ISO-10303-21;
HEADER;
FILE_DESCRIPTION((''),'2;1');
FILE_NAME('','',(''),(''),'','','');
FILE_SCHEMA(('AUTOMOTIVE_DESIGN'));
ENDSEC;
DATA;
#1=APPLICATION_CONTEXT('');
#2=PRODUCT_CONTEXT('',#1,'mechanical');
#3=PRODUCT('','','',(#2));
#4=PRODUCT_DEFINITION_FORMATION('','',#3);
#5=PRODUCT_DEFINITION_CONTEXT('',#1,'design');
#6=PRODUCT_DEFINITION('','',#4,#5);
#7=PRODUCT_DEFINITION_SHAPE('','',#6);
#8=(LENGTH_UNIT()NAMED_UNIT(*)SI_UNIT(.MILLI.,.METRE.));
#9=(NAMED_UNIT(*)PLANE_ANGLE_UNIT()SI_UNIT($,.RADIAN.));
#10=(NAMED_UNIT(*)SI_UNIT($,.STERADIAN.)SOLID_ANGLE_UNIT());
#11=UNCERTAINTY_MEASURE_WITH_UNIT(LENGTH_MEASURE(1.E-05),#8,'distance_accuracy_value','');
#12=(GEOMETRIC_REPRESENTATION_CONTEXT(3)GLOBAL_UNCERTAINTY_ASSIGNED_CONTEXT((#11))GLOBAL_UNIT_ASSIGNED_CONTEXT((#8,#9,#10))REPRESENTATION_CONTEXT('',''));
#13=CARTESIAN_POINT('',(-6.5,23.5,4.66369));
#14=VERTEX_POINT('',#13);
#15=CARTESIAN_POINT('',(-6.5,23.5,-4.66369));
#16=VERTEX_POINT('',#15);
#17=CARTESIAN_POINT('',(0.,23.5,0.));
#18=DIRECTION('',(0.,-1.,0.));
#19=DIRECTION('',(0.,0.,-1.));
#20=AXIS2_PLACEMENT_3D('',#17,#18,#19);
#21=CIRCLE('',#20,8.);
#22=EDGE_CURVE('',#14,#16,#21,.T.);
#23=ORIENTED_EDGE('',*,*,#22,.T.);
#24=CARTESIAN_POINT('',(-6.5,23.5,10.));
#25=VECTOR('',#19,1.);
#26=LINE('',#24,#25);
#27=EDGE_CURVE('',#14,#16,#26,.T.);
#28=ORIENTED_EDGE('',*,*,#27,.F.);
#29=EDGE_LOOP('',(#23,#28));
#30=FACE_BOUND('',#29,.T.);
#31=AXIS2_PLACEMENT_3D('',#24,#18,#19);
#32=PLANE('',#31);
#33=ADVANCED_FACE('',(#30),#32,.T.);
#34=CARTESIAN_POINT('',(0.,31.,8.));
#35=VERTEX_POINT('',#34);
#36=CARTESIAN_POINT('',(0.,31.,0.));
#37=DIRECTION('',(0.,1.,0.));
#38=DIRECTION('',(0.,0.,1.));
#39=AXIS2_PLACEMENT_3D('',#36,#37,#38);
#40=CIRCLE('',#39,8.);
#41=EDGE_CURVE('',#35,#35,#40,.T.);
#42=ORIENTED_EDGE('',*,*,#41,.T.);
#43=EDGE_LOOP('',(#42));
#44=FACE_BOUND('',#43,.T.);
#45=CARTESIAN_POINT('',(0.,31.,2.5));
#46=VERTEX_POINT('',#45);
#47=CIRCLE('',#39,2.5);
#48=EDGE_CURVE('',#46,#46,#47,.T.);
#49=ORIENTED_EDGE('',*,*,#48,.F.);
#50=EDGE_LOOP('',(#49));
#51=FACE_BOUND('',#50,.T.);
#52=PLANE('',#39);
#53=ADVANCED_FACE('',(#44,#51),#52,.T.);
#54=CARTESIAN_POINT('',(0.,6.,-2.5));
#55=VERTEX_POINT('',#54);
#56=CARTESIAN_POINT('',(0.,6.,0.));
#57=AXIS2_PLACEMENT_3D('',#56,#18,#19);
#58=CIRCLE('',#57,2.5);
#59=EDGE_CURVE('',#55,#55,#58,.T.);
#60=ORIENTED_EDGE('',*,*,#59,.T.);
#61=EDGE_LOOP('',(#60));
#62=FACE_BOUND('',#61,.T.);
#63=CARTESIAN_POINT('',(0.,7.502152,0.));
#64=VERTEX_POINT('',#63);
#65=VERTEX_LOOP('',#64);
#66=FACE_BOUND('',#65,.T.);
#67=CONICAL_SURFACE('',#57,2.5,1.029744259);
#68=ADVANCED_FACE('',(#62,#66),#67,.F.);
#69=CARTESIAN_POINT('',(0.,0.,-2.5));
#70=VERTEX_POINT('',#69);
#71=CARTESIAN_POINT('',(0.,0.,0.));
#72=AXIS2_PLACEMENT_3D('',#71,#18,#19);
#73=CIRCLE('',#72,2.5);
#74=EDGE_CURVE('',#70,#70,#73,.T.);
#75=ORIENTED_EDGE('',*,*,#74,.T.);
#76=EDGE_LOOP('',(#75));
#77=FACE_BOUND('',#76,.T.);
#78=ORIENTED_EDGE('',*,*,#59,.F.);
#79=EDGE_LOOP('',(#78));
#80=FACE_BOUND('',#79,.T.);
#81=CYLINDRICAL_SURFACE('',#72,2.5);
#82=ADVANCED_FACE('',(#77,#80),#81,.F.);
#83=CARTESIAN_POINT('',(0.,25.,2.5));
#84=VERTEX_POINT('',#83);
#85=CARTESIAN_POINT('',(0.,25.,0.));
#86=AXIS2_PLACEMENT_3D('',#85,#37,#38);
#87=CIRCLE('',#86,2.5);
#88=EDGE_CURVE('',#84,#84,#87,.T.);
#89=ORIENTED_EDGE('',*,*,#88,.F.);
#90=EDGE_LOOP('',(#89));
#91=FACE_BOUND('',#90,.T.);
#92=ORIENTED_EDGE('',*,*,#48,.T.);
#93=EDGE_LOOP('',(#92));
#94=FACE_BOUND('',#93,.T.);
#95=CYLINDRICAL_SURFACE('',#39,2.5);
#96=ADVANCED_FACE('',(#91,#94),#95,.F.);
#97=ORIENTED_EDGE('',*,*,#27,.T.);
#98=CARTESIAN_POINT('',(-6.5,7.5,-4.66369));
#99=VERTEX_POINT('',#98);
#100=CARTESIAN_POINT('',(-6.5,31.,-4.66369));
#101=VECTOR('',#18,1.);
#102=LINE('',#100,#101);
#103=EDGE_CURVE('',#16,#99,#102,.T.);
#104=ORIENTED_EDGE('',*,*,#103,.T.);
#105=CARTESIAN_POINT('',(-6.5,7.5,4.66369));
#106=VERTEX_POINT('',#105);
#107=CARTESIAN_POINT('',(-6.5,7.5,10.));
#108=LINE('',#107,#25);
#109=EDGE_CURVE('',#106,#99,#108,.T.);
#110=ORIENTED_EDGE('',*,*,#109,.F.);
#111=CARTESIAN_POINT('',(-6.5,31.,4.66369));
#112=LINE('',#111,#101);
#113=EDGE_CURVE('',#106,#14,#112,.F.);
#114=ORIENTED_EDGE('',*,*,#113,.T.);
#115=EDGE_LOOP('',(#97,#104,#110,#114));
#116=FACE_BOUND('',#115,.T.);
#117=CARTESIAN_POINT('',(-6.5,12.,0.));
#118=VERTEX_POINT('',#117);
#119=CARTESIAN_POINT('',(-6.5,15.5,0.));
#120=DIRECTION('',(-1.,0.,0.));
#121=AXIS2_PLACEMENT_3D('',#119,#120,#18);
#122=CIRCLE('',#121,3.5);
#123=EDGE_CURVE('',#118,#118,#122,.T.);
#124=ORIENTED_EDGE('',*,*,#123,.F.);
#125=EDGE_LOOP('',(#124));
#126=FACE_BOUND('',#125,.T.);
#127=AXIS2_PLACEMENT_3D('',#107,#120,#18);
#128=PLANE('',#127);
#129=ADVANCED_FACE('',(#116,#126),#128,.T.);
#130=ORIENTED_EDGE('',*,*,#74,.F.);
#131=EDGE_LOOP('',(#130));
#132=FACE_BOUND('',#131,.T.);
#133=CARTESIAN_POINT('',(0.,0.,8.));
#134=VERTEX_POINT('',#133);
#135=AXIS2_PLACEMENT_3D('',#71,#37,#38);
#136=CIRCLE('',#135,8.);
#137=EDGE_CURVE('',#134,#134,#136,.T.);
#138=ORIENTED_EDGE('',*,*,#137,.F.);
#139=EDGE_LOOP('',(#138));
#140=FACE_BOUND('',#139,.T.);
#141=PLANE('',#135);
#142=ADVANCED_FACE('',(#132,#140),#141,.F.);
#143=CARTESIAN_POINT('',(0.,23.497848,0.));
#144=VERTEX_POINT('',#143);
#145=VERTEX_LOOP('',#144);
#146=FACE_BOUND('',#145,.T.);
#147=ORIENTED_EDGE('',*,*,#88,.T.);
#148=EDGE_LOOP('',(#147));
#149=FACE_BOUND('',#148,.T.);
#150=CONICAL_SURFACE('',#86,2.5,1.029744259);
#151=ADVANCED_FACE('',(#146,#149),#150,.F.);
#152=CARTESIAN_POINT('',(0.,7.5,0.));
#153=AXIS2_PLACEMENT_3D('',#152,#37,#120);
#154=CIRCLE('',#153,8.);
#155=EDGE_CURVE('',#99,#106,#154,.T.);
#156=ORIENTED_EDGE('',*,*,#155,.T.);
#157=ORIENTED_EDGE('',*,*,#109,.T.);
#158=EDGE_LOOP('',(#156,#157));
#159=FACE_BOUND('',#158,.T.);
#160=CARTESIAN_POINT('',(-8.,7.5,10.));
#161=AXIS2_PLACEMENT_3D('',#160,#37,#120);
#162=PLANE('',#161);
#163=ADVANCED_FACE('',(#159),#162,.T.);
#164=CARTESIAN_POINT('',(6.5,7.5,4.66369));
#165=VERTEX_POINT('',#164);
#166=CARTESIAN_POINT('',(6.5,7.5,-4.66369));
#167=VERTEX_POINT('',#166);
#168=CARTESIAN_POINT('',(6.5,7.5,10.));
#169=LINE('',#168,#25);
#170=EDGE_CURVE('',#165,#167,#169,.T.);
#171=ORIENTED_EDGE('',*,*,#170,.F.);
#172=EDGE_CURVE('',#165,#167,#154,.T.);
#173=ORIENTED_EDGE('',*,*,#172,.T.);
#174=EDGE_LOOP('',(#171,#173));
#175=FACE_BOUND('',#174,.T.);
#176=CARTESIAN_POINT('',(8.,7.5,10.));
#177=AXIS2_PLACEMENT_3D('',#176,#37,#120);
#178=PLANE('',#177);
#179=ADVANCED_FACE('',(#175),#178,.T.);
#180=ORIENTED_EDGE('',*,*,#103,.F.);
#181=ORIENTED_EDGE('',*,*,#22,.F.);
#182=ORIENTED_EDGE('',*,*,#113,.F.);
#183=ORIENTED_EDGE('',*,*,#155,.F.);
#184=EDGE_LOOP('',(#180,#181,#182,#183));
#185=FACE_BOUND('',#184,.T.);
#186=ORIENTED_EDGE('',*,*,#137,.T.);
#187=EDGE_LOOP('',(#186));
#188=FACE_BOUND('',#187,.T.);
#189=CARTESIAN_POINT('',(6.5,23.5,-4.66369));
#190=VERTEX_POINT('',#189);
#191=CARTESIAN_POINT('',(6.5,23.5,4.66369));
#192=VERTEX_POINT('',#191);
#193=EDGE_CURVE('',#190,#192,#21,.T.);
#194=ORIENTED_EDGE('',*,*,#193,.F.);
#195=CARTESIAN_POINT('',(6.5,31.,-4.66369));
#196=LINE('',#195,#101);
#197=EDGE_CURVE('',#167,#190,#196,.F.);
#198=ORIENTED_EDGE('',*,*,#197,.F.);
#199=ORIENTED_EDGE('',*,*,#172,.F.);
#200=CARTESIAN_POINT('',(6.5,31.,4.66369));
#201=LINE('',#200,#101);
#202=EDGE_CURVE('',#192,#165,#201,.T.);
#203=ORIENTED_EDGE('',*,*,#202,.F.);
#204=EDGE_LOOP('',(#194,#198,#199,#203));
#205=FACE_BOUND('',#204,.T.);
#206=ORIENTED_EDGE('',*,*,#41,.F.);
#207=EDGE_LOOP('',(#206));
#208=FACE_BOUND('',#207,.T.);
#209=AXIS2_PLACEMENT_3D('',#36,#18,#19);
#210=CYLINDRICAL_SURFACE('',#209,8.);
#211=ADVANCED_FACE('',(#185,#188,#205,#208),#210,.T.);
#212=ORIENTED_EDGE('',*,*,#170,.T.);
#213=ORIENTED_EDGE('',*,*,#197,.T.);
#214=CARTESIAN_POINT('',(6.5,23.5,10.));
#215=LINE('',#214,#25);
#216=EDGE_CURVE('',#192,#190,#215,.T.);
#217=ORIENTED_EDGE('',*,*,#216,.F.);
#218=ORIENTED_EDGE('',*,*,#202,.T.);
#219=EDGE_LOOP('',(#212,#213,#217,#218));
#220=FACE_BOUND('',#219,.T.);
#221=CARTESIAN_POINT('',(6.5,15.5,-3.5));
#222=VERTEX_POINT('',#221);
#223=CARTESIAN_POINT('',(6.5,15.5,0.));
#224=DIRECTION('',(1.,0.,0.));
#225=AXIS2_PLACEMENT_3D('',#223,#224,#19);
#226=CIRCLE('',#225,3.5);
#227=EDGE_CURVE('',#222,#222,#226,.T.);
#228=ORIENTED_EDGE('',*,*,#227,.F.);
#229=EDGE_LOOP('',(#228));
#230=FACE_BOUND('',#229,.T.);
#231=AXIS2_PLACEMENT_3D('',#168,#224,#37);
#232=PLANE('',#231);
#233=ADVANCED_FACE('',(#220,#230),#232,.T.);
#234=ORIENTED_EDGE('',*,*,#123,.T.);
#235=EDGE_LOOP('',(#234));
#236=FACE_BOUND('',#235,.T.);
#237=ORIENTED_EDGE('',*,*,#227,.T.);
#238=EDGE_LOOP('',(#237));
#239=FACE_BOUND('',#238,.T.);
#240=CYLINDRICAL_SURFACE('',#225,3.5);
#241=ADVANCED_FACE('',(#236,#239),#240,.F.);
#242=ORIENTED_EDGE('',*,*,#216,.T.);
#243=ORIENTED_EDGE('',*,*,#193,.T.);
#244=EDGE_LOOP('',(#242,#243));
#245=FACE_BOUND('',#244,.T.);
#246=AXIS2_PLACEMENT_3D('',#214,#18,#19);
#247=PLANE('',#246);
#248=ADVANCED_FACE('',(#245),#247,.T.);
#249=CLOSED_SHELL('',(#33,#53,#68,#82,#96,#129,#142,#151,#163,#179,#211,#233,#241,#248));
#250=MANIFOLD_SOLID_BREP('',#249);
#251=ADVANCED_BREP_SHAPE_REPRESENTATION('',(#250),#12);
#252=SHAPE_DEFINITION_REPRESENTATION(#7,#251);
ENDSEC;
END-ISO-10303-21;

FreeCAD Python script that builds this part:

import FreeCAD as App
import Part
import Sketcher
from FreeCAD import Vector
Q = App.Units.Quantity


def add_polygon(sketch, points):
    """Adds a closed chain of lines whose ends are joined by coincident constraints."""
    first, n = sketch.GeometryCount, len(points)
    for a, b in zip(points, points[1:] + points[:1]):
        sketch.addGeometry(Part.LineSegment(App.Vector(*a, 0), App.Vector(*b, 0)), False)
    for i in range(n):
        sketch.addConstraint(Sketcher.Constraint("Coincident", first + i, 2, first + (i + 1) % n, 1))

doc = App.newDocument("Part")
body = doc.addObject("PartDesign::Body", "Body")

sketch1 = body.newObject("Sketcher::SketchObject", "Sketch")
sketch1.AttachmentSupport = (doc.getObject("XZ_Plane"), [""])
sketch1.MapMode = "FlatFace"
sketch1.addGeometry(Part.Circle(Vector(0, 0, 0), Vector(0, 0, 1), 8), False)
sketch1.addConstraint([
    Sketcher.Constraint("Coincident", 0, 3, -1, 1),
    Sketcher.Constraint("Diameter", 0, Q("16 mm")),
])
pad1 = body.newObject("PartDesign::Pad", "Pad")
pad1.Profile = sketch1
pad1.Length = 31
pad1.Reversed = True

sketch2 = body.newObject("Sketcher::SketchObject", "Sketch001")
sketch2.AttachmentSupport = (doc.getObject("XZ_Plane"), [""])
sketch2.MapMode = "FlatFace"
sketch2.AttachmentOffset = App.Placement(Vector(0, 0, -31), App.Rotation())
sketch2.addGeometry(Part.Circle(Vector(0, 0, 0), Vector(0, 0, 1), 2.5), False)
sketch2.addConstraint([
    Sketcher.Constraint("Coincident", 0, 3, -1, 1),
    Sketcher.Constraint("Diameter", 0, Q("5 mm")),
])
doc.recompute()
hole = body.newObject("PartDesign::Hole", "Hole")
hole.Profile = sketch2
hole.ThreadType = "None"
hole.Diameter = 5
hole.DepthType = "Dimension"
hole.Depth = 6
hole.DrillPoint = "Angled"
hole.DrillPointAngle = 118
hole.Reversed = True

sketch3 = body.newObject("Sketcher::SketchObject", "Sketch002")
sketch3.AttachmentSupport = (doc.getObject("XZ_Plane"), [""])
sketch3.MapMode = "FlatFace"
sketch3.addGeometry(Part.Circle(Vector(0, 0, 0), Vector(0, 0, 1), 2.5), False)
sketch3.addConstraint([
    Sketcher.Constraint("Coincident", 0, 3, -1, 1),
    Sketcher.Constraint("Diameter", 0, Q("5 mm")),
])
doc.recompute()
hole2 = body.newObject("PartDesign::Hole", "Hole001")
hole2.Profile = sketch3
hole2.ThreadType = "None"
hole2.Diameter = 5
hole2.DepthType = "Dimension"
hole2.Depth = 6
hole2.DrillPoint = "Angled"
hole2.DrillPointAngle = 118

sketch4 = body.newObject("Sketcher::SketchObject", "Sketch003")
sketch4.AttachmentSupport = (doc.getObject("XY_Plane"), [""])
sketch4.MapMode = "FlatFace"
add_polygon(sketch4, [(6.5, 23.5), (6.5, 7.5), (8, 7.5), (8, 23.5)])
add_polygon(sketch4, [(-8, 23.5), (-8, 7.5), (-6.5, 7.5), (-6.5, 23.5)])
sketch4.addConstraint([
    Sketcher.Constraint("Vertical", 0),
    Sketcher.Constraint("Horizontal", 1),
    Sketcher.Constraint("Vertical", 2),
    Sketcher.Constraint("Horizontal", 3),
    Sketcher.Constraint("Vertical", 4),
    Sketcher.Constraint("Horizontal", 5),
    Sketcher.Constraint("Vertical", 6),
    Sketcher.Constraint("Horizontal", 7),
    Sketcher.Constraint("Symmetric", 1, 2, 4, 2, -2),
    Sketcher.Constraint("Symmetric", 3, 2, 6, 2, -2),
    Sketcher.Constraint("DistanceY", 0, 2, 0, 1, Q("16 mm")),
    Sketcher.Constraint("DistanceX", 1, 1, 1, 2, Q("1.5 mm")),
    Sketcher.Constraint("DistanceX", -1, 1, 1, 2, Q("8 mm")),
    Sketcher.Constraint("DistanceY", -1, 1, 0, 2, Q("7.5 mm")),
])
pocket1 = body.newObject("PartDesign::Pocket", "Pocket")
pocket1.Profile = sketch4
pocket1.Type = "ThroughAll"
pocket1.Midplane = True

sketch5 = body.newObject("Sketcher::SketchObject", "Sketch004")
sketch5.AttachmentSupport = (doc.getObject("YZ_Plane"), [""])
sketch5.MapMode = "FlatFace"
sketch5.AttachmentOffset = App.Placement(Vector(0, 0, 6.5), App.Rotation())
sketch5.addGeometry(Part.Circle(Vector(15.5, 0, 0), Vector(0, 0, 1), 3.5), False)
sketch5.addConstraint([
    Sketcher.Constraint("PointOnObject", 0, 3, -1),
    Sketcher.Constraint("Diameter", 0, Q("7 mm")),
    Sketcher.Constraint("DistanceX", -1, 1, 0, 3, Q("15.5 mm")),
])
doc.recompute()
hole3 = body.newObject("PartDesign::Hole", "Hole002")
hole3.Profile = sketch5
hole3.ThreadType = "None"
hole3.Diameter = 7
hole3.DepthType = "ThroughAll"

doc.recompute()
